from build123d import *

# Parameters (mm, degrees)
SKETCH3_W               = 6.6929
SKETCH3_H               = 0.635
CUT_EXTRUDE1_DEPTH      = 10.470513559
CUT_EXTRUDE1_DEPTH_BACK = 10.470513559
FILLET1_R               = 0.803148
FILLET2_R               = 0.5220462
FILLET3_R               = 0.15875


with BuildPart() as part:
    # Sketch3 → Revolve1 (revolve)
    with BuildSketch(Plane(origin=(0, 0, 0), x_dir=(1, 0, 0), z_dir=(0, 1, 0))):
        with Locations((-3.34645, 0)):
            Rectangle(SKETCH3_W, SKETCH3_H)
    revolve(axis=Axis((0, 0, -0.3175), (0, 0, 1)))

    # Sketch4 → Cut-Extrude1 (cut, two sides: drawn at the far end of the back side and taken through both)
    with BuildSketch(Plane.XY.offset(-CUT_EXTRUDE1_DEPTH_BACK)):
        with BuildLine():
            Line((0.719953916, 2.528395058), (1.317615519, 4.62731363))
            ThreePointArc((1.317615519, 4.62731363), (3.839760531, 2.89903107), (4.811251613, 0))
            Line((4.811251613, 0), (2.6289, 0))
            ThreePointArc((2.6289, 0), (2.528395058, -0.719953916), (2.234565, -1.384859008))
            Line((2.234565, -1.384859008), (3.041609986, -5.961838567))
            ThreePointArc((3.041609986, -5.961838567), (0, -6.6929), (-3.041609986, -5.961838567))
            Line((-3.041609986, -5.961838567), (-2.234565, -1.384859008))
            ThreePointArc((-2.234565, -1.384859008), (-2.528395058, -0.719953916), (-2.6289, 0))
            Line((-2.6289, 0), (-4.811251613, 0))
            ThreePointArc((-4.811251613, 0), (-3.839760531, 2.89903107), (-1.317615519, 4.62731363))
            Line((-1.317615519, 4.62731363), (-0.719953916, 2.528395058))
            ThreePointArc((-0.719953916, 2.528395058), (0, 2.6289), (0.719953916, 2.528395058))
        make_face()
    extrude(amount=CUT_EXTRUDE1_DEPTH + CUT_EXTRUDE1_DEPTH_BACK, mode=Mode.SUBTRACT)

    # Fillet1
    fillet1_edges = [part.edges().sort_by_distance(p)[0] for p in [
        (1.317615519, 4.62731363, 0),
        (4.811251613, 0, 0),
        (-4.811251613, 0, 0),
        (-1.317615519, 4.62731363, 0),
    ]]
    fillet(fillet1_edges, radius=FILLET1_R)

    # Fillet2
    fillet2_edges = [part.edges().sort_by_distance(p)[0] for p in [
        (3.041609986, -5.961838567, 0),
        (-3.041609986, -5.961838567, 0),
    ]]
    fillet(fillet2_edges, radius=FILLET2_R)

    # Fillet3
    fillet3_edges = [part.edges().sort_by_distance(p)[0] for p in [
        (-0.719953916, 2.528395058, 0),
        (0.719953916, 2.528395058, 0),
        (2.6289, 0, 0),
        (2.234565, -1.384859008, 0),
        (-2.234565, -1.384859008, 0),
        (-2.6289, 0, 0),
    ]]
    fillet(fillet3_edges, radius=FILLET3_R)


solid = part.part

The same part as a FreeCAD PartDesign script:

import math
import FreeCAD as App
import Part
import Sketcher

V = App.Vector
Q = App.Units.Quantity


def edges_at(feature, points):
    """Names of the edges that pass closest to the given points."""
    edges = feature.Shape.Edges
    near = lambda p: min(range(len(edges)), key=lambda i: edges[i].distToShape(Part.Vertex(*p))[0])
    return sorted({f"Edge{near(p) + 1}" for p in points})

doc = App.newDocument("Part")
body = doc.addObject("PartDesign::Body", "Body")

# Sketch on XZ plane
sketch1 = doc.addObject("Sketcher::SketchObject", "Sketch")
body.addObject(sketch1)
sketch1.AttachmentSupport = (doc.XZ_Plane, [""])
sketch1.MapMode = "FlatFace"
sketch1.addGeometry([
    Part.LineSegment(V(-6.6929, -0.3175, 0), V(-6.6929, 0.3175, 0)),
    Part.LineSegment(V(-6.6929, 0.3175, 0), V(0, 0.3175, 0)),
    Part.LineSegment(V(0, 0.3175, 0), V(0, -0.3175, 0)),
    Part.LineSegment(V(0, -0.3175, 0), V(-6.6929, -0.3175, 0)),
], False)
sketch1.addConstraint([
    Sketcher.Constraint("Coincident", 0, 2, 1, 1),
    Sketcher.Constraint("Coincident", 1, 2, 2, 1),
    Sketcher.Constraint("Coincident", 2, 2, 3, 1),
    Sketcher.Constraint("Coincident", 3, 2, 0, 1),
    Sketcher.Constraint("Vertical", 0),
    Sketcher.Constraint("Horizontal", 1),
    Sketcher.Constraint("Vertical", 2),
    Sketcher.Constraint("Horizontal", 3),
    Sketcher.Constraint("Symmetric", 1, 2, 2, 2, -1, 1),
    Sketcher.Constraint("DistanceY", 0, 1, 0, 2, Q("0.025 in")),
    Sketcher.Constraint("DistanceX", 1, 1, 1, 2, Q("0.2635 in")),
])
revolution = doc.addObject("PartDesign::Revolution", "Revolution")
body.addObject(revolution)
revolution.Profile = sketch1
revolution.ReferenceAxis = (sketch1, ["V_Axis"])
revolution.Angle = 360

# Sketch on XY plane
sketch2 = doc.addObject("Sketcher::SketchObject", "Sketch001")
body.addObject(sketch2)
sketch2.AttachmentSupport = (doc.XY_Plane, [""])
sketch2.MapMode = "FlatFace"
sketch2.addGeometry([
    Part.LineSegment(V(1.317616, 4.627314, 0), V(0.719954, 2.528395, 0)),  # 0
    Part.ArcOfCircle(Part.Circle(V(0, 0, 0), V(0, 0, 1), 2.6289), math.radians(74.105835), math.radians(105.894165)),  # 1
    Part.LineSegment(V(-0.719954, 2.528395, 0), V(-1.317616, 4.627314, 0)),  # 2
    Part.ArcOfCircle(Part.Circle(V(0, 0, 0), V(0, 0, 1), 4.811252), math.radians(105.894165), math.radians(180)),  # 3
    Part.LineSegment(V(-4.811252, 0, 0), V(-2.6289, 0, 0)),  # 4
    Part.ArcOfCircle(Part.Circle(V(0, 0, 0), V(0, 0, 1), 2.6289), math.radians(180), math.radians(211.788331)),  # 5
    Part.LineSegment(V(-2.234565, -1.384859, 0), V(-3.04161, -5.961839, 0)),  # 6
    Part.ArcOfCircle(Part.Circle(V(0, 0, 0), V(0, 0, 1), 6.6929), math.radians(-117.029759), math.radians(-62.970241)),  # 7
    Part.LineSegment(V(3.04161, -5.961839, 0), V(2.234565, -1.384859, 0)),  # 8
    Part.ArcOfCircle(Part.Circle(V(0, 0, 0), V(0, 0, 1), 2.6289), math.radians(-31.788331), math.radians(0)),  # 9
    Part.LineSegment(V(2.6289, 0, 0), V(4.811252, 0, 0)),  # 10
    Part.ArcOfCircle(Part.Circle(V(0, 0, 0), V(0, 0, 1), 4.811252), math.radians(0), math.radians(74.105835)),  # 11
], False)
sketch2.addConstraint([
    Sketcher.Constraint("Coincident", 0, 2, 1, 1),
    Sketcher.Constraint("Coincident", 1, 2, 2, 1),
    Sketcher.Constraint("Coincident", 2, 2, 3, 1),
    Sketcher.Constraint("Coincident", 3, 2, 4, 1),
    Sketcher.Constraint("Coincident", 4, 2, 5, 1),
    Sketcher.Constraint("Coincident", 5, 2, 6, 1),
    Sketcher.Constraint("Coincident", 6, 2, 7, 1),
    Sketcher.Constraint("Coincident", 7, 2, 8, 1),
    Sketcher.Constraint("Coincident", 8, 2, 9, 1),
    Sketcher.Constraint("Coincident", 9, 2, 10, 1),
    Sketcher.Constraint("Coincident", 10, 2, 11, 1),
    Sketcher.Constraint("Coincident", 11, 2, 0, 1),
    Sketcher.Constraint("Horizontal", 4),
    Sketcher.Constraint("Horizontal", 10),
    Sketcher.Constraint("Coincident", 1, 3, -1, 1),
    Sketcher.Constraint("Coincident", 3, 3, -1, 1),
    Sketcher.Constraint("Coincident", 5, 3, -1, 1),
    Sketcher.Constraint("Coincident", 7, 3, -1, 1),
    Sketcher.Constraint("Coincident", 9, 3, -1, 1),
    Sketcher.Constraint("Coincident", 11, 3, -1, 1),
    Sketcher.Constraint("Equal", 1, 5),
    Sketcher.Constraint("Equal", 5, 9),
    Sketcher.Constraint("Equal", 3, 11),
    Sketcher.Constraint("PointOnObject", 3, 2, -1),
    Sketcher.Constraint("PointOnObject", 9, 2, -1),
    Sketcher.Constraint("Horizontal", 0, 2, 1, 2),
    Sketcher.Constraint("Horizontal", 6, 2, 7, 2),
    Sketcher.Constraint("Horizontal", 5, 2, 8, 2),
    Sketcher.Constraint("Horizontal", 2, 2, 11, 2),
    Sketcher.Constraint("Angle", 6, Q("-100 deg")),
    Sketcher.Constraint("Radius", 1, Q("0.1035 in")),
    Sketcher.Constraint("Radius", 7, Q("0.2635 in")),
    Sketcher.Constraint("Radius", 3, 4.811252),
    Sketcher.Constraint("DistanceY", 5, 2, -1, 1, 1.384859),
    Sketcher.Constraint("DistanceX", 2, 2, 1, 2, 0.597662),
    Sketcher.Constraint("DistanceX", 2, 2, 0, 2, 2.037569),
])
pocket1 = doc.addObject("PartDesign::Pocket", "Pocket")
body.addObject(pocket1)
pocket1.Profile = sketch2
pocket1.Type = "ThroughAll"
pocket1.Midplane = True
doc.recompute()

fillet = doc.addObject("PartDesign::Fillet", "Fillet")
body.addObject(fillet)
fillet.Base = (pocket1, edges_at(pocket1, [
    (1.318, 4.627, 0),
    (4.811, 0, 0),
    (-4.811, 0, 0),
    (-1.318, 4.627, 0),
]))
fillet.Radius = 0.803148
doc.recompute()

fillet2 = doc.addObject("PartDesign::Fillet", "Fillet001")
body.addObject(fillet2)
fillet2.Base = (fillet, edges_at(fillet, [(3.042, -5.962, 0), (-3.042, -5.962, 0)]))
fillet2.Radius = 0.522046
doc.recompute()

fillet3 = doc.addObject("PartDesign::Fillet", "Fillet002")
body.addObject(fillet3)
fillet3.Base = (fillet2, edges_at(fillet2, [
    (-0.72, 2.528, 0),
    (0.72, 2.528, 0),
    (2.629, 0, 0),
    (2.235, -1.385, 0),
    (-2.235, -1.385, 0),
    (-2.629, 0, 0),
]))
fillet3.Radius = 0.15875

doc.recompute()
